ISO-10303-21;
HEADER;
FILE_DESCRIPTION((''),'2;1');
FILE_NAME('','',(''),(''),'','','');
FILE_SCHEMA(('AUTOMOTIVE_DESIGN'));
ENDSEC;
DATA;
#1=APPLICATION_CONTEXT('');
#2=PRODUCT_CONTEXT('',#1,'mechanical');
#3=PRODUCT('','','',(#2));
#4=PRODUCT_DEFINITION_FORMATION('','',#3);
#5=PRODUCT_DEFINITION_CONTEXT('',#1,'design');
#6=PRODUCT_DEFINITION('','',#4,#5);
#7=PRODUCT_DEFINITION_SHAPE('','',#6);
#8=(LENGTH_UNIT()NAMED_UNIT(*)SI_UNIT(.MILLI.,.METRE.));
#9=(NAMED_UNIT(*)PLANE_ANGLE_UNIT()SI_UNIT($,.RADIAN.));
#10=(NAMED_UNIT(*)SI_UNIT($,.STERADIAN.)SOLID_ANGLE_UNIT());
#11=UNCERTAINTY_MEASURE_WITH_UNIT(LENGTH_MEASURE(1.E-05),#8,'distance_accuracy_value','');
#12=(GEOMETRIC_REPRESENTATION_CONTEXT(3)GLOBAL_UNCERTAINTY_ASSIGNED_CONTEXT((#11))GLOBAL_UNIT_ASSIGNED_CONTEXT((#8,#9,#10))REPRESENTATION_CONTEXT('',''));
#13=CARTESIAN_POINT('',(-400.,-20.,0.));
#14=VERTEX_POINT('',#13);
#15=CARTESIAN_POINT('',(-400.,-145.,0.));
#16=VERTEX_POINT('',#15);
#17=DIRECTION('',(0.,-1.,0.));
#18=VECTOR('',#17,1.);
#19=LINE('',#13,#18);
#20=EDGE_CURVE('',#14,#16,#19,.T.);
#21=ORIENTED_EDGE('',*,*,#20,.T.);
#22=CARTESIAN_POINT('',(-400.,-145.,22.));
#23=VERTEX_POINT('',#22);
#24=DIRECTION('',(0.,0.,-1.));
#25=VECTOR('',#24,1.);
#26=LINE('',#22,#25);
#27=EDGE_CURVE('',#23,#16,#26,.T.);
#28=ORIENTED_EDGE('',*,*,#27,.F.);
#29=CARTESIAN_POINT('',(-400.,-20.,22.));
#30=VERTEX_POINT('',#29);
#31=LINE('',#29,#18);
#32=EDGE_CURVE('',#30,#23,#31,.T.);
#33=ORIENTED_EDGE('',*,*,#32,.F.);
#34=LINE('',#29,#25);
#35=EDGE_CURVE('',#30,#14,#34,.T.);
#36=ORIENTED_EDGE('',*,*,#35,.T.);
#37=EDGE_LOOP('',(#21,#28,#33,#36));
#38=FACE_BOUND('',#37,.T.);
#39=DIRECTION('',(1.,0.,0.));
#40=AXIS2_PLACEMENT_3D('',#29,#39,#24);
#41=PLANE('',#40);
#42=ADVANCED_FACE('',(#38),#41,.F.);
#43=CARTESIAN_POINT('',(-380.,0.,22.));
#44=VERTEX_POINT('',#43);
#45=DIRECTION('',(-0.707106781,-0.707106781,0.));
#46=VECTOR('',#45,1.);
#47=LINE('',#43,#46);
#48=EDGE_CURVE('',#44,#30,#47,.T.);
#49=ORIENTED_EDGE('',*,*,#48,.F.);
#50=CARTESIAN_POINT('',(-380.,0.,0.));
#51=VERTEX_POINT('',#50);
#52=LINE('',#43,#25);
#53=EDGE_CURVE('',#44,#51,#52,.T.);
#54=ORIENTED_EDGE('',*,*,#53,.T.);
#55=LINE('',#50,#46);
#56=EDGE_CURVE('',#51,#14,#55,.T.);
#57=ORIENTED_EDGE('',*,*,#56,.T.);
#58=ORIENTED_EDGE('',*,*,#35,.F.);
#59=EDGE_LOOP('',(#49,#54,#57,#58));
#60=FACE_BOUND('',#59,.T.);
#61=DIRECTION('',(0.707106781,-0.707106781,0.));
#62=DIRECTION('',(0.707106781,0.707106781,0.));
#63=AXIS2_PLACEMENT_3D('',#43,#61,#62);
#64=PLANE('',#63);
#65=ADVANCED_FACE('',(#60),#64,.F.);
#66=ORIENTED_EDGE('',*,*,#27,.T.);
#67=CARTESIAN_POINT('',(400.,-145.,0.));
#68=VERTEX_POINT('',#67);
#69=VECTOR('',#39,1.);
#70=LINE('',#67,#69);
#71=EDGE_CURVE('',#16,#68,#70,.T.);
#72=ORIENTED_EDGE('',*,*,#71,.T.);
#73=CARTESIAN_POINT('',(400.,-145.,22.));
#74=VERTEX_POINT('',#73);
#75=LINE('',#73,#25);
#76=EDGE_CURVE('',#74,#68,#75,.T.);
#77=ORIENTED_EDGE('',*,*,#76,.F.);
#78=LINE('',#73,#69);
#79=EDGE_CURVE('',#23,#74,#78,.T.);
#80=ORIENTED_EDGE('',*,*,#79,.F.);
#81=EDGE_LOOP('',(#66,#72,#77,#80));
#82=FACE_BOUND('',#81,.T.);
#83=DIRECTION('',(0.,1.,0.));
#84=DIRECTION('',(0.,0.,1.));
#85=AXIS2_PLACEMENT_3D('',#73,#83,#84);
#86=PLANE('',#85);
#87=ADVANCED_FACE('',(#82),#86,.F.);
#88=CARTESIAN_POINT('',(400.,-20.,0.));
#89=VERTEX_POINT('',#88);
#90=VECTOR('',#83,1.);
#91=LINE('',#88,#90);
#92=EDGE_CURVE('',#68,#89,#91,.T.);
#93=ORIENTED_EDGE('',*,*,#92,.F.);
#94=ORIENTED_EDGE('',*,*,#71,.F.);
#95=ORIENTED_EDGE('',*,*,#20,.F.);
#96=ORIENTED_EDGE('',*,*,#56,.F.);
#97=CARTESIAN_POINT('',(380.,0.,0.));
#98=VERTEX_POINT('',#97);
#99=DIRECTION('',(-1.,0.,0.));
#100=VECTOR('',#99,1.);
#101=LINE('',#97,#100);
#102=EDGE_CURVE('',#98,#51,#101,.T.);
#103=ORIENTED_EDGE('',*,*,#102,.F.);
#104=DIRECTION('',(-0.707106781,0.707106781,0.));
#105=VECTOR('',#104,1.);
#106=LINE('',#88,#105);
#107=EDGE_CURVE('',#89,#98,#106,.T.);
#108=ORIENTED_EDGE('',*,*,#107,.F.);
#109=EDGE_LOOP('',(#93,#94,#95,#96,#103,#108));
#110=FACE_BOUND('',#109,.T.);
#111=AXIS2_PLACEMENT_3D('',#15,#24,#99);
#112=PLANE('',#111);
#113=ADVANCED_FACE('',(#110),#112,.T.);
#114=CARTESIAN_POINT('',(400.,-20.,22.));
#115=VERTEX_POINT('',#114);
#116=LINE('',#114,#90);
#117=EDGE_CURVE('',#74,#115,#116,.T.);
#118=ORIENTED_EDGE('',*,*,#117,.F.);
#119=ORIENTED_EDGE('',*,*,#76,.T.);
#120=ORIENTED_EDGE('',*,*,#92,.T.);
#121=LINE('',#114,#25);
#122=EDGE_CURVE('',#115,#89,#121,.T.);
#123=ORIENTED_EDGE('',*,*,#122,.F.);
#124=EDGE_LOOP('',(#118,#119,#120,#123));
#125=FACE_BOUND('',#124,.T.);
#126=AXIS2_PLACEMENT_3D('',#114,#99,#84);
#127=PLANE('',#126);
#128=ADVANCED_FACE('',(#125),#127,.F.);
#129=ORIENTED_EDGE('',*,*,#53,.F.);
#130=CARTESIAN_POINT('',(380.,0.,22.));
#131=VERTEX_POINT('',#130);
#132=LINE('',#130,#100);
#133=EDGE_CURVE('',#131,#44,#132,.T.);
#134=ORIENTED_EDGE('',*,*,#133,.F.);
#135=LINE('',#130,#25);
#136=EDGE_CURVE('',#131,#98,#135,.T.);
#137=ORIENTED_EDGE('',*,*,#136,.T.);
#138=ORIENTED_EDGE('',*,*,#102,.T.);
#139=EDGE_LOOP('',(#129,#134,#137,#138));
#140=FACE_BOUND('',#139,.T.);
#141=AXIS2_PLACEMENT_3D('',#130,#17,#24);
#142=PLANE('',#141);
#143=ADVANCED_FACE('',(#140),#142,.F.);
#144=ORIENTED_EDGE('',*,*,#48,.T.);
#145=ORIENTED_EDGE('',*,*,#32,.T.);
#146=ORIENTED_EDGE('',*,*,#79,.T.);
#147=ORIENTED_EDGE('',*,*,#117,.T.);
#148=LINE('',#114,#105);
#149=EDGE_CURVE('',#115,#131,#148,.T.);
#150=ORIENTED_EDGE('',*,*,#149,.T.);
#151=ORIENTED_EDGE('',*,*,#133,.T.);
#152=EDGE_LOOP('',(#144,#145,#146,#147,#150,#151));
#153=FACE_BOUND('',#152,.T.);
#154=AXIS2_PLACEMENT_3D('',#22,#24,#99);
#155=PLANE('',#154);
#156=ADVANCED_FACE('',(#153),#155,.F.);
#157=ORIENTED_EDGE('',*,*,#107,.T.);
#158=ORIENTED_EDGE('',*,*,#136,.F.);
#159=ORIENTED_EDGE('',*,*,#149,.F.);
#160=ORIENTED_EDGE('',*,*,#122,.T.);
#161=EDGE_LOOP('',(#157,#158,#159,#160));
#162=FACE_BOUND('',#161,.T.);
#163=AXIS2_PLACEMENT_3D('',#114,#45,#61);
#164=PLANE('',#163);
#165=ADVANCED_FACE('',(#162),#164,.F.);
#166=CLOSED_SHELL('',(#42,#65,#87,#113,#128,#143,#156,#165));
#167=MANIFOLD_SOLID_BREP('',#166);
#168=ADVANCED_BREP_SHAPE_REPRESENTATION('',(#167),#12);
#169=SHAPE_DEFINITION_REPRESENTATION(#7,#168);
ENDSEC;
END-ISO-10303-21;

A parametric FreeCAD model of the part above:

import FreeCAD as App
import Part
import Sketcher

V = App.Vector


def add_polygon(sketch, points):
    """Adds a closed chain of lines whose ends are joined by coincident constraints."""
    first, n = sketch.GeometryCount, len(points)
    for a, b in zip(points, points[1:] + points[:1]):
        sketch.addGeometry(Part.LineSegment(App.Vector(*a, 0), App.Vector(*b, 0)), False)
    for i in range(n):
        sketch.addConstraint(Sketcher.Constraint("Coincident", first + i, 2, first + (i + 1) % n, 1))

doc = App.newDocument("Part")
body = doc.addObject("PartDesign::Body", "Body")

# Sketch on XY plane
sketch1 = body.newObject("Sketcher::SketchObject", "Sketch")
sketch1.AttachmentSupport = (doc.getObject("XY_Plane"), [""])
sketch1.MapMode = "FlatFace"
add_polygon(sketch1, [(400, -20), (380, 0), (-380, 0), (-400, -20), (-400, -145), (400, -145)])  # lines 0-5
sketch1.addConstraint(Sketcher.Constraint("Horizontal", 1))
sketch1.addConstraint(Sketcher.Constraint("Vertical", 3))
sketch1.addConstraint(Sketcher.Constraint("Horizontal", 4))
sketch1.addConstraint(Sketcher.Constraint("Vertical", 5))
sketch1.addConstraint(Sketcher.Constraint("Symmetric", 0, 2, 1, 2, -1, 1))
sketch1.addConstraint(Sketcher.Constraint("Symmetric", 2, 2, 5, 2, -2))
sketch1.addConstraint(Sketcher.Constraint("Perpendicular", 0, 2))
sketch1.addConstraint(Sketcher.Constraint("DistanceX", 1, 2, 1, 1, 760.0))
sketch1.addConstraint(Sketcher.Constraint("DistanceX", 4, 1, 4, 2, 800.0))
sketch1.addConstraint(Sketcher.Constraint("DistanceY", 3, 2, 3, 1, 125.0))
pad1 = body.newObject("PartDesign::Pad", "Pad")
pad1.Profile = sketch1
pad1.Length = 22

doc.recompute()
